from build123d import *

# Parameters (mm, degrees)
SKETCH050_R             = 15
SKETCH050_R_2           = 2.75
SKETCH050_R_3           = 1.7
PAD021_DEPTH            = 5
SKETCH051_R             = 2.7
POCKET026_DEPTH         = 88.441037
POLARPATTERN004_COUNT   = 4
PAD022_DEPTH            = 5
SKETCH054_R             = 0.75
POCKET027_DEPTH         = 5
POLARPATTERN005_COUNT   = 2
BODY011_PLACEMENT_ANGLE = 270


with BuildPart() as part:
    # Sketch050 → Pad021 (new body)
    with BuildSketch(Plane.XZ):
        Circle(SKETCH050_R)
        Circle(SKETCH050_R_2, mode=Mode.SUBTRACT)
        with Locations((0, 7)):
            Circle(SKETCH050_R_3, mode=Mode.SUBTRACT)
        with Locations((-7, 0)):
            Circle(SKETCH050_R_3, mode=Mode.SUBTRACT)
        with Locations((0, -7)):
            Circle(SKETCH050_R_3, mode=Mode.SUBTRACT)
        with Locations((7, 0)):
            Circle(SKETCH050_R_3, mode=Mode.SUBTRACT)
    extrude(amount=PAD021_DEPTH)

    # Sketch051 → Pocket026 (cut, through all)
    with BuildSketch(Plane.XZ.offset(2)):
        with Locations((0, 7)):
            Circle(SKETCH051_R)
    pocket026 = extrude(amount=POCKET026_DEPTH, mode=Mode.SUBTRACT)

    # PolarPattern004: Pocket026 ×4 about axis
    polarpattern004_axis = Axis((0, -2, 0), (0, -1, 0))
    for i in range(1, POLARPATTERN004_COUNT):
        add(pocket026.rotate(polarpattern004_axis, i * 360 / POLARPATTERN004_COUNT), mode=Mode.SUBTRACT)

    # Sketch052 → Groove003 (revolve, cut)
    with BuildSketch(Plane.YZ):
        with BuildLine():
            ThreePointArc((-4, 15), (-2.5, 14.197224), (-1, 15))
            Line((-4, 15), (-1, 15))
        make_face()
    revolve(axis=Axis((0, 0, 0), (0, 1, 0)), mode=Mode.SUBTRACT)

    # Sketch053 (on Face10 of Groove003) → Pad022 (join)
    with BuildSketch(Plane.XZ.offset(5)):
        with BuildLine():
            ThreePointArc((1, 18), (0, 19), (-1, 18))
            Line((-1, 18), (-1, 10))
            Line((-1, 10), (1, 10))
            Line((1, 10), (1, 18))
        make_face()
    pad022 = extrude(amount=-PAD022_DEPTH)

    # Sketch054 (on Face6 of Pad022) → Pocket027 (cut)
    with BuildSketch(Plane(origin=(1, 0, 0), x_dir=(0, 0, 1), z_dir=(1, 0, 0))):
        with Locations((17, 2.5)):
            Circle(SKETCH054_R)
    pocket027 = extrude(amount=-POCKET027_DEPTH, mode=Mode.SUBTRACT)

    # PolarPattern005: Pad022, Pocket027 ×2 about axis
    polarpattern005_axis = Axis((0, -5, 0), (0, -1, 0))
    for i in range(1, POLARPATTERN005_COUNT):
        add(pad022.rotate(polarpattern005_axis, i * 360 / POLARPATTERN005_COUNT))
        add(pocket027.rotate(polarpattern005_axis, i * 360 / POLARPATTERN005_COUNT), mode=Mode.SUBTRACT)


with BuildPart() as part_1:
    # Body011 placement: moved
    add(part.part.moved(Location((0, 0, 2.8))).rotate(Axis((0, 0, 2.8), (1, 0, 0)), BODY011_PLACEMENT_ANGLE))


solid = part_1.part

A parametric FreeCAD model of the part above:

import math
import FreeCAD as App
import Part
import Sketcher

V = App.Vector
Q = App.Units.Quantity

doc = App.newDocument("Part")
body = doc.addObject("PartDesign::Body", "Body")

# Sketch on XZ plane
sketch1 = doc.addObject("Sketcher::SketchObject", "Sketch")
body.addObject(sketch1)
sketch1.AttachmentSupport = (doc.XZ_Plane, [""])
sketch1.MapMode = "FlatFace"
sketch1.addGeometry(Part.Circle(V(0, 0, 0), V(0, 0, 1), 15), False)
sketch1.addGeometry(Part.Circle(V(0, -7, 0), V(0, 0, 1), 1.7), False)
sketch1.addGeometry(Part.Circle(V(-7, 0, 0), V(0, 0, 1), 1.7), False)
sketch1.addGeometry(Part.Circle(V(0, 0, 0), V(0, 0, 1), 2.8), False)
sketch1.addGeometry(Part.Circle(V(7, 0, 0), V(0, 0, 1), 1.7), False)
sketch1.addGeometry(Part.Circle(V(0, 7, 0), V(0, 0, 1), 1.7), False)
sketch1.addConstraint(Sketcher.Constraint("Coincident", 0, 3, -1, 1))
sketch1.addConstraint(Sketcher.Constraint("Coincident", 3, 3, -1, 1))
sketch1.addConstraint(Sketcher.Constraint("Equal", 1, 2))
sketch1.addConstraint(Sketcher.Constraint("Equal", 2, 4))
sketch1.addConstraint(Sketcher.Constraint("Equal", 4, 5))
sketch1.addConstraint(Sketcher.Constraint("Symmetric", 2, 3, 4, 3, -1, 1))
sketch1.addConstraint(Sketcher.Constraint("Symmetric", 1, 3, 5, 3, -1, 1))
sketch1.addConstraint(Sketcher.Constraint("PointOnObject", 1, 3, -2))
sketch1.addConstraint(Sketcher.Constraint("PointOnObject", 2, 3, -1))
sketch1.addConstraint(Sketcher.Constraint("Diameter", 0, Q("30 mm")))
sketch1.addConstraint(Sketcher.Constraint("Diameter", 1, Q("3.4 mm")))
sketch1.addConstraint(Sketcher.Constraint("Diameter", 3, Q("5.5 mm")))
sketch1.addConstraint(Sketcher.Constraint("DistanceY", 1, 3, -1, 1, Q("7 mm")))
sketch1.addConstraint(Sketcher.Constraint("DistanceX", 2, 3, -1, 1, Q("7 mm")))
pad1 = doc.addObject("PartDesign::Pad", "Pad")
body.addObject(pad1)
pad1.Profile = sketch1
pad1.Length = 5

# Sketch on XZ plane
sketch2 = doc.addObject("Sketcher::SketchObject", "Sketch001")
body.addObject(sketch2)
sketch2.AttachmentSupport = (doc.XZ_Plane, [""])
sketch2.MapMode = "FlatFace"
sketch2.AttachmentOffset = App.Placement(V(0, 0, 2), App.Rotation())
sketch2.addGeometry(Part.Circle(V(0, 7, 0), V(0, 0, 1), 2.7), False)
sketch2.addConstraint(Sketcher.Constraint("PointOnObject", 0, 3, -2))
sketch2.addConstraint(Sketcher.Constraint("Diameter", 0, Q("5.4 mm")))
sketch2.addConstraint(Sketcher.Constraint("DistanceY", -1, 1, 0, 3, Q("7 mm")))
pocket1 = doc.addObject("PartDesign::Pocket", "Pocket")
body.addObject(pocket1)
pocket1.Profile = sketch2
pocket1.Type = "ThroughAll"
pocket1.Reversed = True
doc.recompute()

polarpattern = doc.addObject("PartDesign::PolarPattern", "PolarPattern")
body.addObject(polarpattern)
polarpattern.Originals = [pocket1]
polarpattern.Axis = (doc.Y_Axis, [""])
polarpattern.Angle = 360
polarpattern.Occurrences = 4
body.Tip = polarpattern

# Sketch on YZ plane
sketch3 = doc.addObject("Sketcher::SketchObject", "Sketch002")
body.addObject(sketch3)
sketch3.AttachmentSupport = (doc.YZ_Plane, [""])
sketch3.MapMode = "FlatFace"
sketch3.addGeometry(Part.ArcOfCircle(Part.Circle(V(-2.5, 16, 0), V(0, 0, 1), 1.8), math.radians(-146), math.radians(-34)), False)
sketch3.addGeometry(Part.LineSegment(V(-1, 15, 0), V(-4, 15, 0)), False)
sketch3.addConstraint(Sketcher.Constraint("Coincident", 0, 1, 1, 2))
sketch3.addConstraint(Sketcher.Constraint("Coincident", 1, 1, 0, 2))
sketch3.addConstraint(Sketcher.Constraint("Horizontal", 1))
sketch3.addConstraint(Sketcher.Constraint("DistanceX", 1, 2, 1, 1, Q("3 mm")))
sketch3.addConstraint(Sketcher.Constraint("DistanceY", -1, 1, 0, 3, Q("15.999999 mm")))
sketch3.addConstraint(Sketcher.Constraint("DistanceX", 0, 1, -1, 1, Q("4 mm")))
sketch3.addConstraint(Sketcher.Constraint("DistanceY", -1, 1, 0, 1, Q("15 mm")))
groove = doc.addObject("PartDesign::Groove", "Groove")
body.addObject(groove)
groove.Profile = sketch3
groove.ReferenceAxis = (sketch3, ["H_Axis"])
groove.Angle = 360

# Sketch on XZ plane
sketch4 = doc.addObject("Sketcher::SketchObject", "Sketch003")
body.addObject(sketch4)
sketch4.AttachmentSupport = (doc.XZ_Plane, [""])
sketch4.MapMode = "FlatFace"
sketch4.AttachmentOffset = App.Placement(V(0, 0, 5), App.Rotation())
sketch4.addGeometry(Part.ArcOfCircle(Part.Circle(V(0, 18, 0), V(0, 0, 1), 1), math.radians(0), math.radians(180)), False)
sketch4.addGeometry(Part.LineSegment(V(-1, 18, 0), V(-1, 10, 0)), False)
sketch4.addGeometry(Part.LineSegment(V(-1, 10, 0), V(1, 10, 0)), False)
sketch4.addGeometry(Part.LineSegment(V(1, 10, 0), V(1, 18, 0)), False)
sketch4.addConstraint(Sketcher.Constraint("Tangent", 0, 2, 1, 1))
sketch4.addConstraint(Sketcher.Constraint("Coincident", 1, 2, 2, 1))
sketch4.addConstraint(Sketcher.Constraint("Coincident", 2, 2, 3, 1))
sketch4.addConstraint(Sketcher.Constraint("Tangent", 3, 2, 0, 1))
sketch4.addConstraint(Sketcher.Constraint("Vertical", 1))
sketch4.addConstraint(Sketcher.Constraint("Horizontal", 2))
sketch4.addConstraint(Sketcher.Constraint("Vertical", 3))
sketch4.addConstraint(Sketcher.Constraint("PointOnObject", 0, 3, -2))
sketch4.addConstraint(Sketcher.Constraint("Radius", 0, Q("1 mm")))
sketch4.addConstraint(Sketcher.Constraint("DistanceY", 1, 2, 1, 1, Q("8 mm")))
sketch4.addConstraint(Sketcher.Constraint("DistanceY", -1, 1, 0, 3, Q("18 mm")))
pad2 = doc.addObject("PartDesign::Pad", "Pad001")
body.addObject(pad2)
pad2.Profile = sketch4
pad2.Length = 5
pad2.Reversed = True

# Sketch on YZ plane
sketch5 = doc.addObject("Sketcher::SketchObject", "Sketch004")
body.addObject(sketch5)
sketch5.AttachmentSupport = (doc.YZ_Plane, [""])
sketch5.MapMode = "FlatFace"
sketch5.AttachmentOffset = App.Placement(V(0, 0, 1), App.Rotation())
sketch5.addGeometry(Part.Circle(V(-2.5, 17, 0), V(0, 0, 1), 0.8), False)
sketch5.addConstraint(Sketcher.Constraint("Diameter", 0, Q("1.5 mm")))
sketch5.addConstraint(Sketcher.Constraint("DistanceY", -1, 1, 0, 3, Q("17 mm")))
sketch5.addConstraint(Sketcher.Constraint("DistanceX", 0, 3, -1, 1, Q("2.5 mm")))
pocket2 = doc.addObject("PartDesign::Pocket", "Pocket001")
body.addObject(pocket2)
pocket2.Profile = sketch5
pocket2.Length = 5
doc.recompute()

polarpattern2 = doc.addObject("PartDesign::PolarPattern", "PolarPattern001")
body.addObject(polarpattern2)
polarpattern2.Originals = [pad2, pocket2]
polarpattern2.Axis = (doc.Y_Axis, [""])
polarpattern2.Angle = 360
polarpattern2.Occurrences = 2
body.Tip = polarpattern2
body2 = doc.addObject("PartDesign::Body", "Body001")
doc.recompute()

body.Placement = App.Placement(V(0, 0, 2.8), App.Rotation(V(1, 0, 0), 270))
boolean = doc.addObject("PartDesign::Boolean", "Boolean")
body2.addObject(boolean)
boolean.Type = "Fuse"
boolean.addObjects([body])

doc.recompute()
